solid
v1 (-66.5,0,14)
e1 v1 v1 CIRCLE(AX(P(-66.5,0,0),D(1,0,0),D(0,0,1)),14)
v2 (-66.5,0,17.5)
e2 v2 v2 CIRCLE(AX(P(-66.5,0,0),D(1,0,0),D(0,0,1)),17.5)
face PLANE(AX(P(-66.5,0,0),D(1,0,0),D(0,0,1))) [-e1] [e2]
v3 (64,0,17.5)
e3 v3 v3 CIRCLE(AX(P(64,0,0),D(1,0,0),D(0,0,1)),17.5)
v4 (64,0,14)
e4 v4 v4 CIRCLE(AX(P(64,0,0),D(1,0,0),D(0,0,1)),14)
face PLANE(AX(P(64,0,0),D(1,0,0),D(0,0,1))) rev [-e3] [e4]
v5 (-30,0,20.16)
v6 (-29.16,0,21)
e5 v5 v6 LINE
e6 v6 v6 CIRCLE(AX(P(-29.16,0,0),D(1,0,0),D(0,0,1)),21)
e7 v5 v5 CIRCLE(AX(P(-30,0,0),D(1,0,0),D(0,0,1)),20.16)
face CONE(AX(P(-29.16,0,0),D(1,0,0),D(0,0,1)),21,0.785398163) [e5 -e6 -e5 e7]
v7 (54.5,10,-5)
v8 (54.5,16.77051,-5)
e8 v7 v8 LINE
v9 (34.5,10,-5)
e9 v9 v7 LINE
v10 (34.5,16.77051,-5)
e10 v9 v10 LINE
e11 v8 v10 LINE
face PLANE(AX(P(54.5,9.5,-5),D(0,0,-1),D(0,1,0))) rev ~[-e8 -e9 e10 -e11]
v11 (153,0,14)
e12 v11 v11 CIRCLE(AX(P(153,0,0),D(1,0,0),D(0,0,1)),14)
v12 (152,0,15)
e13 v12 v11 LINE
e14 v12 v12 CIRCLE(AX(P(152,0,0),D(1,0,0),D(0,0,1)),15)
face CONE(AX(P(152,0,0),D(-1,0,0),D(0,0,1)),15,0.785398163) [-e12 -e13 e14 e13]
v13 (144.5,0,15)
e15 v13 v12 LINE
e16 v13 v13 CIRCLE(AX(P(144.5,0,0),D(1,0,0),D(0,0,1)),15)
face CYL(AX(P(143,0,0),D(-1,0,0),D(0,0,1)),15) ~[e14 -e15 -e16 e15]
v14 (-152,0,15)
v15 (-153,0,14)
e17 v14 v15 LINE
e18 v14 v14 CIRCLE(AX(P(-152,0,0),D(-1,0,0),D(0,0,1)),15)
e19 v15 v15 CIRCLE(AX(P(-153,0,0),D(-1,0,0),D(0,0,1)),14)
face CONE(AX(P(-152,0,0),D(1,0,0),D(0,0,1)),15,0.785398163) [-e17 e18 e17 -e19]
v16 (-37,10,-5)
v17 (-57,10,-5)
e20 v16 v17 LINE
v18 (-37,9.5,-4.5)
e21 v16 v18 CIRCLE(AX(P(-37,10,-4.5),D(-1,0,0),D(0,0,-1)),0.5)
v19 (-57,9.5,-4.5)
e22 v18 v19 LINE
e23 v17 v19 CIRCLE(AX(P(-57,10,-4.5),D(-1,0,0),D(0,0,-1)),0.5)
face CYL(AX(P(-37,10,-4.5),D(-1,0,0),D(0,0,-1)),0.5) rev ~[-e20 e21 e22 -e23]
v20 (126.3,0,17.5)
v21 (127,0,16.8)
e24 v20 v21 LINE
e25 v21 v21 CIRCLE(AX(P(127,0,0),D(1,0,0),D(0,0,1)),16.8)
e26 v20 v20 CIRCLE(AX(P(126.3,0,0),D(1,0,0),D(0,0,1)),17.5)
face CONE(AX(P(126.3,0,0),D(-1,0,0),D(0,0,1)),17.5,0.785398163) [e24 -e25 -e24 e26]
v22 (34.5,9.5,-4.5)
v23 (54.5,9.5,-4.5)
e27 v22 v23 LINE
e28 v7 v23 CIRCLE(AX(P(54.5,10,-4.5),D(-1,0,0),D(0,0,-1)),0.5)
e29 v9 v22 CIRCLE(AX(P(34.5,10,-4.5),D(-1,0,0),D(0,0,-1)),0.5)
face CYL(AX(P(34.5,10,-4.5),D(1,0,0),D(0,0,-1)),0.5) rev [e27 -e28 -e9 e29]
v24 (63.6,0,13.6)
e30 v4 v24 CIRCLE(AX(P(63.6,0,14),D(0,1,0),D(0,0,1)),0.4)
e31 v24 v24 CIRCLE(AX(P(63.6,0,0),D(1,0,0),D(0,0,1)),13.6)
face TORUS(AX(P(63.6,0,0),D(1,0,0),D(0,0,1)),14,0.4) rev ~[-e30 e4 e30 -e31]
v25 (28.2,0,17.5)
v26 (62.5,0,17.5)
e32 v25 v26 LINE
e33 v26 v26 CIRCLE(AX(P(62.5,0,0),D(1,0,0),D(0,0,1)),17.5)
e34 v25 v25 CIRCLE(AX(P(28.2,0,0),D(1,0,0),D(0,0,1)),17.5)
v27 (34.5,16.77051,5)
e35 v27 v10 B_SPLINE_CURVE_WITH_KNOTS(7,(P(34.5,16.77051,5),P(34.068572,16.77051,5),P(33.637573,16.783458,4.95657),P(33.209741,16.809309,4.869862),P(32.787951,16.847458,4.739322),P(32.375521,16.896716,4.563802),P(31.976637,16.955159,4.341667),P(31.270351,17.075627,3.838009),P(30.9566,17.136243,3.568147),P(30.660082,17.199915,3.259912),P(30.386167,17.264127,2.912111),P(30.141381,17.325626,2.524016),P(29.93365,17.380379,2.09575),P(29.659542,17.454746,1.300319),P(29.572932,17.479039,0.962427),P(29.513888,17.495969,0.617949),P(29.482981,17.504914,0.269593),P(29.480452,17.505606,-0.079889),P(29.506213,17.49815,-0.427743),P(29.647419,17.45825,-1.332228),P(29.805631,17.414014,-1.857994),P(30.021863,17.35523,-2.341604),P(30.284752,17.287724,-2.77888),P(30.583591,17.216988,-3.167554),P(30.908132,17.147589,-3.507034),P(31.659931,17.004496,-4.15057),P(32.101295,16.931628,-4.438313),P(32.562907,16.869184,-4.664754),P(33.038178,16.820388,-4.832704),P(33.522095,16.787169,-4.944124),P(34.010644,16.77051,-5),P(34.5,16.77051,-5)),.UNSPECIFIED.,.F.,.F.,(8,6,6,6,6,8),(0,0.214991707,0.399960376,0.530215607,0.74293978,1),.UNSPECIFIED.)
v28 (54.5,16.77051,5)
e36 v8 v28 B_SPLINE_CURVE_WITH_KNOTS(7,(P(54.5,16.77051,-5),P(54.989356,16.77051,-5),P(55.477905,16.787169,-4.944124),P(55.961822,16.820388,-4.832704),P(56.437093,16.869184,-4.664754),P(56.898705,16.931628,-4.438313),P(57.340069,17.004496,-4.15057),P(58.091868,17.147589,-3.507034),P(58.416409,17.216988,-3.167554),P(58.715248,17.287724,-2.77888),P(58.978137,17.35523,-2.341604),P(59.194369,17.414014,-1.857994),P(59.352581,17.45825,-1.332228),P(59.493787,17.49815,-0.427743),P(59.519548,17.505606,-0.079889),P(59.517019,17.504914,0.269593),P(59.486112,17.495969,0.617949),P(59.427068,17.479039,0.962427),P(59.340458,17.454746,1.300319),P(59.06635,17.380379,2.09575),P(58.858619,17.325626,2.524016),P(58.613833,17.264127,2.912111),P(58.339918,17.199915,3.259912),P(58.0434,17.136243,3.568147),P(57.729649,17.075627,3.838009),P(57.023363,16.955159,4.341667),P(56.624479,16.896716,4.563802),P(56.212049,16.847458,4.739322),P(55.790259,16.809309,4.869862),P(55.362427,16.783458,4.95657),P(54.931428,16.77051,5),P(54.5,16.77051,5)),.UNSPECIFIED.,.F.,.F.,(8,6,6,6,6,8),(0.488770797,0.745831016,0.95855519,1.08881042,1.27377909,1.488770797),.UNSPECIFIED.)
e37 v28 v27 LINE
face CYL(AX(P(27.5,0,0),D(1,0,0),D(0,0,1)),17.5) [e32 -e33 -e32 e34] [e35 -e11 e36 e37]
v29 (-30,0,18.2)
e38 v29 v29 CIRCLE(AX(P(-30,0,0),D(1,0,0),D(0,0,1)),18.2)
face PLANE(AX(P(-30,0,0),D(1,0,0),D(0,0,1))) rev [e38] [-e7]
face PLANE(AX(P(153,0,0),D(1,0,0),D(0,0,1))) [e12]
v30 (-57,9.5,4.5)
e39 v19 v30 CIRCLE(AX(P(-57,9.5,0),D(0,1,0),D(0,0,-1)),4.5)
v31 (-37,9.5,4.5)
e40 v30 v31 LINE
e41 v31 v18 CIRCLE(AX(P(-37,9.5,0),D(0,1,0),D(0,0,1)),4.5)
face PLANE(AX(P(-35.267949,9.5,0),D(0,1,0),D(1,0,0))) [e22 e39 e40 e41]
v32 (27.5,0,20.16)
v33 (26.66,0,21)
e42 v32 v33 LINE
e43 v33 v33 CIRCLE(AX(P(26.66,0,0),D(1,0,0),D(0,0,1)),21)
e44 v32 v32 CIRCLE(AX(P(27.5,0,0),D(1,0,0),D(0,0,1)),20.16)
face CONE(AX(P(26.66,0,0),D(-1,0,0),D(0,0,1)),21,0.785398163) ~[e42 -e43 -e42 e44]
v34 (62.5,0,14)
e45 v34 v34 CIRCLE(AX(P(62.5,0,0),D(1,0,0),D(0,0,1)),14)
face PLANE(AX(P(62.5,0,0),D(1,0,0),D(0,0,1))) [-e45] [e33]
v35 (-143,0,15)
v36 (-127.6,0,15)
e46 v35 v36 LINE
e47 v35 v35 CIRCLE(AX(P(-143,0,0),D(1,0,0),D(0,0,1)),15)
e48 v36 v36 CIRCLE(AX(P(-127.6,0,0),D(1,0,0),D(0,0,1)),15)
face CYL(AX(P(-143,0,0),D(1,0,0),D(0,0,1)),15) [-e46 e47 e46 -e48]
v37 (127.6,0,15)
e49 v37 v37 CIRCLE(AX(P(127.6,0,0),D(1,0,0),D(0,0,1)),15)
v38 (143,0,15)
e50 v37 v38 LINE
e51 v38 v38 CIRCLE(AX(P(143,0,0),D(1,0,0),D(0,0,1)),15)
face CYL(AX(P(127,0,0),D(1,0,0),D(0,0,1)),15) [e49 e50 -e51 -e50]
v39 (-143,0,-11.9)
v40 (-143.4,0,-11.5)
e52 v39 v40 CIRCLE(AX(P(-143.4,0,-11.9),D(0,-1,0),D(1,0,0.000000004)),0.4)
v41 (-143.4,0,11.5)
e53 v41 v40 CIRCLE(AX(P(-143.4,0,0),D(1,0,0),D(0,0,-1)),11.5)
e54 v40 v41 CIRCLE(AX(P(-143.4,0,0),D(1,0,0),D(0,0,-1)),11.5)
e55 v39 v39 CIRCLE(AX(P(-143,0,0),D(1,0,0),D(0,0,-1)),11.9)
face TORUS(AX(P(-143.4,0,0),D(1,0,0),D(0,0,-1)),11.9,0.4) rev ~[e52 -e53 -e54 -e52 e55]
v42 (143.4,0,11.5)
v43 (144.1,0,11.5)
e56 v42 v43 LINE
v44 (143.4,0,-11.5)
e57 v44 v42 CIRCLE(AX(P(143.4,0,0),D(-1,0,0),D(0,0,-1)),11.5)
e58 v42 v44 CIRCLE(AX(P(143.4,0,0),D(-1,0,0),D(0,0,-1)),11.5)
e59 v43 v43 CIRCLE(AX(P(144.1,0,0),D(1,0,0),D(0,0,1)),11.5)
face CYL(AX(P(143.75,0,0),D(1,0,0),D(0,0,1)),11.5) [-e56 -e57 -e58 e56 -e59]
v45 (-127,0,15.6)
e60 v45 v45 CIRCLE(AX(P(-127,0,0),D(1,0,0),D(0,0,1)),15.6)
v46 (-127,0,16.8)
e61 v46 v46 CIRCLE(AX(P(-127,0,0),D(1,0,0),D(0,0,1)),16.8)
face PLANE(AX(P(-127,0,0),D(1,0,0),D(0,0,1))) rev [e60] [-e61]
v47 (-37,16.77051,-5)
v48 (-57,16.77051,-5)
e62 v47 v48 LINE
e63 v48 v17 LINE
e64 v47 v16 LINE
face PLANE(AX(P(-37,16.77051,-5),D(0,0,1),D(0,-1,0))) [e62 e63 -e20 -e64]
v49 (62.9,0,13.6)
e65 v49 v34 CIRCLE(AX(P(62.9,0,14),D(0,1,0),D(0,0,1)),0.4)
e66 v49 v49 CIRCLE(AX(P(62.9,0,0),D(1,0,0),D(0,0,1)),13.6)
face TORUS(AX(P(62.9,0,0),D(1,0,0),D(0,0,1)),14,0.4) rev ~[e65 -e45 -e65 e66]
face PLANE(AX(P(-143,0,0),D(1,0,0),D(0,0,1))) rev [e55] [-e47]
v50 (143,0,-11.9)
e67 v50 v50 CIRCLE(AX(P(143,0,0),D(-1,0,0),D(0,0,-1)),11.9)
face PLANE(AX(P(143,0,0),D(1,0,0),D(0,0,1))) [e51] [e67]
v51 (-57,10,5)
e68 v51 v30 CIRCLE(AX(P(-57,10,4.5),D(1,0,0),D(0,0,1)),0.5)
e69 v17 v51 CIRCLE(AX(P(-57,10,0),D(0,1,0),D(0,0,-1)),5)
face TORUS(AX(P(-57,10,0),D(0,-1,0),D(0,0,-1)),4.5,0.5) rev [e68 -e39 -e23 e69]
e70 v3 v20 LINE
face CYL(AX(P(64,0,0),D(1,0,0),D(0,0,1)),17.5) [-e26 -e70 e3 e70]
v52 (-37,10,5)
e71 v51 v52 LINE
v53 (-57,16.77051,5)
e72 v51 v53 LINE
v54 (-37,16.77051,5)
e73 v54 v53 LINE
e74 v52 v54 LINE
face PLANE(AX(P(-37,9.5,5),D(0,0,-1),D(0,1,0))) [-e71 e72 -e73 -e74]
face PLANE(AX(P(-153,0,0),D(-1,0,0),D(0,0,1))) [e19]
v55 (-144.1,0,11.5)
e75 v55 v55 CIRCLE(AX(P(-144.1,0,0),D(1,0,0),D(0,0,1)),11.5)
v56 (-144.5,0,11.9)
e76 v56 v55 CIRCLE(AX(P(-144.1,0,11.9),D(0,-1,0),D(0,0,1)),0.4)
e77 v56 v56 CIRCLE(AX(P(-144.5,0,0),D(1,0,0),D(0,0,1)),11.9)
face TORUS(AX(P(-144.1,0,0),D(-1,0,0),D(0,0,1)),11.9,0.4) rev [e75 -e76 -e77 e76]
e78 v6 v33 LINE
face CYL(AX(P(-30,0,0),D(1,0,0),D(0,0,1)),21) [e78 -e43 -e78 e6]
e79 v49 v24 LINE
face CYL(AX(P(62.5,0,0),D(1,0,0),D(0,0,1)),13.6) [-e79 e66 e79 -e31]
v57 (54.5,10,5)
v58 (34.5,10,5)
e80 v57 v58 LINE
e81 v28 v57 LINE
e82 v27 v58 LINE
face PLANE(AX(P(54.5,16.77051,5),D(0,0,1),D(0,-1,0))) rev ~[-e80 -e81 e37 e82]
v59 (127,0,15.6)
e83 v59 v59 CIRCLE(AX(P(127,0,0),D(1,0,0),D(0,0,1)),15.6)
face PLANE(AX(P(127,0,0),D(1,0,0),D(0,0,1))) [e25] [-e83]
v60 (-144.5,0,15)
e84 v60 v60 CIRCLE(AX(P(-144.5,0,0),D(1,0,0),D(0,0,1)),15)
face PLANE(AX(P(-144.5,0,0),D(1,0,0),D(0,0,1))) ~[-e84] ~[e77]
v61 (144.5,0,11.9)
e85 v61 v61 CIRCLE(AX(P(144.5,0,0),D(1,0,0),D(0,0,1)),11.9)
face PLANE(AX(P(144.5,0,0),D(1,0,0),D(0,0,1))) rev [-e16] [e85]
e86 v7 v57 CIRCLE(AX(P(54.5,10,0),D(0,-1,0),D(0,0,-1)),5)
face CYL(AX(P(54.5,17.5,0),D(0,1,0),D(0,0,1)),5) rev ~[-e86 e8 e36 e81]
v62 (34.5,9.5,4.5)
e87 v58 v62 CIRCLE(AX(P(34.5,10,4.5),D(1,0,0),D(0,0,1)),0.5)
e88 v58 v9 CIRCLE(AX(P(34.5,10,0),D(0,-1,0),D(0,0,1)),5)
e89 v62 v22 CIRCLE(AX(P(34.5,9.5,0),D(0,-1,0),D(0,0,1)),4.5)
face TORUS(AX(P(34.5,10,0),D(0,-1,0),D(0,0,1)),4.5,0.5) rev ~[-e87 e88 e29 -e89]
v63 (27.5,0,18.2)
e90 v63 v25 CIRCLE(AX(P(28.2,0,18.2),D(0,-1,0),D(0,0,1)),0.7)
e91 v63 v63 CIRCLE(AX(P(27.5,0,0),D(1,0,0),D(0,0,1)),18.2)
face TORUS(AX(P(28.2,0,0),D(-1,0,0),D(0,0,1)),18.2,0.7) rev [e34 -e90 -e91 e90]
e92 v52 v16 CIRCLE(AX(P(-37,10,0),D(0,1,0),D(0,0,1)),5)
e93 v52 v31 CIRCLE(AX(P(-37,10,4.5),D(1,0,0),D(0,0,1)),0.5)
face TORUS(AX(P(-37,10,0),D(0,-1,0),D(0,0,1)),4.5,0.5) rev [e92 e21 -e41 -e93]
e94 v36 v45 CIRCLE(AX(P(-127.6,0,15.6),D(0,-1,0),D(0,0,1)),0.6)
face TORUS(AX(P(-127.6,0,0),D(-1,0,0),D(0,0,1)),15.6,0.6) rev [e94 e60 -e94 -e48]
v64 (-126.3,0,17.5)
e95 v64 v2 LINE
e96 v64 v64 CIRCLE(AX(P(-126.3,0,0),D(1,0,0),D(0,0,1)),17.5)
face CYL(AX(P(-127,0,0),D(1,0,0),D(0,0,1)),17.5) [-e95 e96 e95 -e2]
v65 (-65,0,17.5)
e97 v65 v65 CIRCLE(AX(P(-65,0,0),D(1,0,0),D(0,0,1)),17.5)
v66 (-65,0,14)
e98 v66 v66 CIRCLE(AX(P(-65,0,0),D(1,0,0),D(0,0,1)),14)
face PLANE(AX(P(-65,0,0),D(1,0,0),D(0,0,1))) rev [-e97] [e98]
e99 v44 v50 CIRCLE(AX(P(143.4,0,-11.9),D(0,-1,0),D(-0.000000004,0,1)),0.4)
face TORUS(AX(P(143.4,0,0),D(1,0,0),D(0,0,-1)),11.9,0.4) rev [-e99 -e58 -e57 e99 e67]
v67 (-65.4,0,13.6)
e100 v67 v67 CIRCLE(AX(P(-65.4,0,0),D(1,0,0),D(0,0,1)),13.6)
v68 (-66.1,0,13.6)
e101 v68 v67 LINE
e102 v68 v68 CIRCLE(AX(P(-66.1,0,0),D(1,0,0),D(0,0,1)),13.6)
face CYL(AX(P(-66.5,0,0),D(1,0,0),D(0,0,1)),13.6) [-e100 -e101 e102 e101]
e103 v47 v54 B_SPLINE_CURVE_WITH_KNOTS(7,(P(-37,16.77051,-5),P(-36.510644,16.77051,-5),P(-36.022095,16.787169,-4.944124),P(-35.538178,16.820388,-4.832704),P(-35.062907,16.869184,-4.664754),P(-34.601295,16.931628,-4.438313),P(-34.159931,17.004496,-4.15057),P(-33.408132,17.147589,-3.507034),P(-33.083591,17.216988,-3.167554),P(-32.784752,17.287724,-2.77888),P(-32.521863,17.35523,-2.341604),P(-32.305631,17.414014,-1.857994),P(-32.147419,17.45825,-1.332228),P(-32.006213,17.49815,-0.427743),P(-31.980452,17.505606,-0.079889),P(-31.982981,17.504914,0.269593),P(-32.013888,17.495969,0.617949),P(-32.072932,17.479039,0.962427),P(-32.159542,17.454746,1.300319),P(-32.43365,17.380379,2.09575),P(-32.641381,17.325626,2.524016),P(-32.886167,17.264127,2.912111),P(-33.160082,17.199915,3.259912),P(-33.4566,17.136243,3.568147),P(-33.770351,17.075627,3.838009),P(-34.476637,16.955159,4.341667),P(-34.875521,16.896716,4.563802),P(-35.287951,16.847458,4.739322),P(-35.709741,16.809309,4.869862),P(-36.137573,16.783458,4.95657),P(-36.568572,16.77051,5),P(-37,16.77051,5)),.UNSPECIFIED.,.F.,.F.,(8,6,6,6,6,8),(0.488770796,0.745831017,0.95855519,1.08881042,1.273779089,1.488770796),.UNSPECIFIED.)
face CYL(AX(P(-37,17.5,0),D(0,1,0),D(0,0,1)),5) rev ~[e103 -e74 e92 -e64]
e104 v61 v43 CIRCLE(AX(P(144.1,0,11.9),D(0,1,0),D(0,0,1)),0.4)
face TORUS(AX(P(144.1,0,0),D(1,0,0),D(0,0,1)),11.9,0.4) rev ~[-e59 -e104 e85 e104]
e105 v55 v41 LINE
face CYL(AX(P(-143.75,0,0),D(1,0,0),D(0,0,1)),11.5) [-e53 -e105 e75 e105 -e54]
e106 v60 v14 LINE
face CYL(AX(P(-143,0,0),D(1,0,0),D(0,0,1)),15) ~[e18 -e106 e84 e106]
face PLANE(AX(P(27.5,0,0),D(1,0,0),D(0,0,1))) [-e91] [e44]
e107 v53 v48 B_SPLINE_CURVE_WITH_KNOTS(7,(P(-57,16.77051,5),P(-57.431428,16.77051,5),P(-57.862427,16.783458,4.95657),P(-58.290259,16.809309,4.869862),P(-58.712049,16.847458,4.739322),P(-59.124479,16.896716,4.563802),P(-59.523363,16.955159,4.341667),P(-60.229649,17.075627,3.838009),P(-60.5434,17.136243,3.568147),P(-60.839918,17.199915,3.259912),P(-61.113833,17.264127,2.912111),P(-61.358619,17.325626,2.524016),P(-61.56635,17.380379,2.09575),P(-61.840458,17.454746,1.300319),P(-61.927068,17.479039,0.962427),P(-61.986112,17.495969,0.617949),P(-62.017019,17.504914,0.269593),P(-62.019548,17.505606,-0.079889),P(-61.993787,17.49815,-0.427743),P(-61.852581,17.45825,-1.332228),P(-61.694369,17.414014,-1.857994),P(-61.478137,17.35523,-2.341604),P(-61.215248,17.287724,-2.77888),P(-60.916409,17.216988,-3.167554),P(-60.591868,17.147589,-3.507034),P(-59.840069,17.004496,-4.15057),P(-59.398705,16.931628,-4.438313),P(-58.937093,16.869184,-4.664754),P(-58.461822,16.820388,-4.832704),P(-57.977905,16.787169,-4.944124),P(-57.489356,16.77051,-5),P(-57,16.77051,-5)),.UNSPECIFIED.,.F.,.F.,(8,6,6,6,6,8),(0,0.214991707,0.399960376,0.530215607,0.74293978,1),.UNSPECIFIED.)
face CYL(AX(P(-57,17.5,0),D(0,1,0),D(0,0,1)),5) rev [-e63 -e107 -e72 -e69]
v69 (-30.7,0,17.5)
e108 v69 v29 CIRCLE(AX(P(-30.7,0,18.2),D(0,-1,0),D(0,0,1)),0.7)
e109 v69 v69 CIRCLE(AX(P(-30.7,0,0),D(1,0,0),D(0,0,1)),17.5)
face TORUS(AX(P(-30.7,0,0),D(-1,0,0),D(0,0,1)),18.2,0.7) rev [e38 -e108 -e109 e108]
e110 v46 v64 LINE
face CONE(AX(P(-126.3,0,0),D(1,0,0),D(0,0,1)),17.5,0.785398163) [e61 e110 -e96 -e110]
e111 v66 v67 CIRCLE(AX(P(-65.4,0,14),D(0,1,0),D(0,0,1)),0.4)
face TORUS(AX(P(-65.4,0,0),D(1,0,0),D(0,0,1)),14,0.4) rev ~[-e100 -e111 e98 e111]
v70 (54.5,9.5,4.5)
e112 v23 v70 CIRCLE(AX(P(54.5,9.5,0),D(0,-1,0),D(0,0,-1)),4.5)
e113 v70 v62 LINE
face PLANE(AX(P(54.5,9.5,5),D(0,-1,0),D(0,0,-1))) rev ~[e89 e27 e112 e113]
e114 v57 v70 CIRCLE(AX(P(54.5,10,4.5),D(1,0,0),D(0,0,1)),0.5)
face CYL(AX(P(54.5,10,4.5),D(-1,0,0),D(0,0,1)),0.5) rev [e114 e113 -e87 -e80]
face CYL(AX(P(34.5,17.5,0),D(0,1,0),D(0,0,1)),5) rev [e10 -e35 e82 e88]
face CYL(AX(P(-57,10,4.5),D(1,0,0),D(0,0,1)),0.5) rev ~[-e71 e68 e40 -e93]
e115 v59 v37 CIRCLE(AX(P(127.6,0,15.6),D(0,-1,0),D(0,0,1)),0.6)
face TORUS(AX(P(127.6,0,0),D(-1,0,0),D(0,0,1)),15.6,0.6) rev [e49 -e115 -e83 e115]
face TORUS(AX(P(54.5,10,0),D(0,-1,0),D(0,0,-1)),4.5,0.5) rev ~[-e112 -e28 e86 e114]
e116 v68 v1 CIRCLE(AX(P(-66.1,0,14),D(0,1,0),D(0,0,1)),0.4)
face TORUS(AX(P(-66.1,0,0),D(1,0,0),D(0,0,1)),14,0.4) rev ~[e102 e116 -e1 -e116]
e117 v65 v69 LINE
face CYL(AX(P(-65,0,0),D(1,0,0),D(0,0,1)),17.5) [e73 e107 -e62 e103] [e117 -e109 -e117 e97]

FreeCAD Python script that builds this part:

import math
import FreeCAD as App
import Part
import Sketcher
from FreeCAD import Vector
Q = App.Units.Quantity


def edges_at(feature, points):
    """Names of the edges that pass closest to the given points."""
    edges = feature.Shape.Edges
    near = lambda p: min(range(len(edges)), key=lambda i: edges[i].distToShape(Part.Vertex(*p))[0])
    return sorted({f"Edge{near(p) + 1}" for p in points})


def add_polygon(sketch, points):
    """Adds a closed chain of lines whose ends are joined by coincident constraints."""
    first, n = sketch.GeometryCount, len(points)
    for a, b in zip(points, points[1:] + points[:1]):
        sketch.addGeometry(Part.LineSegment(App.Vector(*a, 0), App.Vector(*b, 0)), False)
    for i in range(n):
        sketch.addConstraint(Sketcher.Constraint("Coincident", first + i, 2, first + (i + 1) % n, 1))

doc = App.newDocument("Part")
params = doc.addObject("Spreadsheet::Sheet", "Params")
for row, (alias, value) in enumerate([
    ("sketch1_width", "286 mm"),
    ("sketch1_width2", "16 mm"),
    ("sketch1_width3", "63 mm"),
    ("sketch1_width4", "35 mm"),
    ("sketch1_height", "15 mm"),
    ("revolution_angle", "360 deg"),
    ("sketch2_radius", "17.5 mm"),
    ("sketch2_height", "10 mm"),
    ("pocket1_length", "20 mm"),
    ("sketch3_radius", "17.5 mm"),
    ("sketch3_height", "10 mm"),
    ("pocket2_length", "20 mm"),
    ("fillet_radius", "0.6 mm"),
    ("chamfer_size", "0.7 mm"),
    ("fillet2_radius", "0.7 mm"),
    ("chamfer2_size", "0.84 mm"),
    ("fillet3_radius", "0.7 mm"),
    ("chamfer3_size", "0.84 mm"),
    ("chamfer4_size", "0.7 mm"),
    ("fillet4_radius", "0.6 mm"),
    ("sketch4_radius", "5 mm"),
    ("pocket3_length", "8 mm"),
    ("sketch5_radius", "5 mm"),
    ("pocket4_length", "8 mm"),
    ("sketch6_diameter", "30 mm"),
    ("pad1_length", "10 mm"),
    ("sketch7_width", "1.5 mm"),
    ("sketch7_height", "3.5 mm"),
    ("groove_angle", "360 deg"),
    ("fillet5_radius", "0.4 mm"),
    ("sketch8_diameter", "30 mm"),
    ("pad2_length", "10 mm"),
    ("sketch9_width", "1.5 mm"),
    ("sketch9_height", "3.5 mm"),
    ("groove2_angle", "360 deg"),
    ("fillet6_radius", "0.4 mm"),
    ("sketch10_radius", "0.4 mm"),
    ("revolution2_angle", "360 deg"),
    ("fillet7_radius", "0.4 mm"),
    ("fillet8_radius", "0.4 mm"),
    ("sketch11_radius", "0.4 mm"),
    ("revolution3_angle", "360 deg"),
    ("fillet9_radius", "0.5 mm"),
    ("chamfer5_size", "1 mm"),
    ("chamfer6_size", "1 mm"),
], start=1):
    params.set(f"A{row}", alias)
    params.set(f"B{row}", "=" + value)
    params.setAlias(f"B{row}", alias)

body = doc.addObject("PartDesign::Body", "Body")

# Sketch on XY plane
sketch1 = doc.addObject("Sketcher::SketchObject", "Sketch")
body.addObject(sketch1)
sketch1.AttachmentSupport = (doc.XY_Plane, [""])
sketch1.MapMode = "FlatFace"
add_polygon(sketch1, [(-143, 15), (-143, 0), (143, 0), (143, 15), (127, 15), (127, 17.5), (64, 17.5), (64, 13.6), (62.5, 13.6), (62.5, 17.5), (27.5, 17.5), (27.5, 21), (-30, 21), (-30, 17.5), (-65, 17.5), (-65, 13.6), (-66.5, 13.6), (-66.5, 17.5), (-127, 17.5), (-127, 15)])  # lines 0-19
sketch1.addConstraint(Sketcher.Constraint("Vertical", 0))
sketch1.addConstraint(Sketcher.Constraint("Horizontal", 1))
sketch1.addConstraint(Sketcher.Constraint("Vertical", 2))
sketch1.addConstraint(Sketcher.Constraint("Horizontal", 3))
sketch1.addConstraint(Sketcher.Constraint("Vertical", 4))
sketch1.addConstraint(Sketcher.Constraint("Horizontal", 5))
sketch1.addConstraint(Sketcher.Constraint("Vertical", 6))
sketch1.addConstraint(Sketcher.Constraint("Horizontal", 7))
sketch1.addConstraint(Sketcher.Constraint("Vertical", 8))
sketch1.addConstraint(Sketcher.Constraint("Horizontal", 9))
sketch1.addConstraint(Sketcher.Constraint("Vertical", 10))
sketch1.addConstraint(Sketcher.Constraint("Horizontal", 11))
sketch1.addConstraint(Sketcher.Constraint("Vertical", 12))
sketch1.addConstraint(Sketcher.Constraint("Horizontal", 13))
sketch1.addConstraint(Sketcher.Constraint("Vertical", 14))
sketch1.addConstraint(Sketcher.Constraint("Horizontal", 15))
sketch1.addConstraint(Sketcher.Constraint("Vertical", 16))
sketch1.addConstraint(Sketcher.Constraint("Horizontal", 17))
sketch1.addConstraint(Sketcher.Constraint("Vertical", 18))
sketch1.addConstraint(Sketcher.Constraint("Horizontal", 19))
sketch1.addConstraint(Sketcher.Constraint("Symmetric", 0, 2, 1, 2, -1, 1))
sketch1.addConstraint(Sketcher.Constraint("Symmetric", 4, 2, 17, 2, -2))
sketch1.addConstraint(Sketcher.Constraint("Horizontal", 5, 2, 8, 2))
sketch1.addConstraint(Sketcher.Constraint("Horizontal", 9, 2, 12, 2))
sketch1.addConstraint(Sketcher.Constraint("Horizontal", 7, 2, 14, 2))
sketch1.addConstraint(Sketcher.Constraint("Horizontal", 3, 2, 18, 2))
sketch1.addConstraint(Sketcher.Constraint("Equal", 9, 13))
sketch1.addConstraint(Sketcher.Constraint("Equal", 7, 15))
sketch1.addConstraint(Sketcher.Constraint("DistanceX", 1, 1, 1, 2, Q("286 mm")))
sketch1.addConstraint(Sketcher.Constraint("DistanceX", 3, 2, 3, 1, Q("16 mm")))
sketch1.addConstraint(Sketcher.Constraint("DistanceX", 5, 2, 5, 1, Q("63 mm")))
sketch1.addConstraint(Sketcher.Constraint("DistanceX", 9, 2, 9, 1, Q("35 mm")))
sketch1.addConstraint(Sketcher.Constraint("DistanceY", 0, 2, 0, 1, Q("15 mm")))
sketch1.addConstraint(Sketcher.Constraint("DistanceX", 7, 2, 7, 1, Q("1.5 mm")))
sketch1.addConstraint(Sketcher.Constraint("DistanceX", 11, 2, 11, 1, Q("57.5 mm")))
sketch1.addConstraint(Sketcher.Constraint("DistanceY", 4, 1, 4, 2, Q("2.5 mm")))
sketch1.addConstraint(Sketcher.Constraint("DistanceY", 6, 2, 6, 1, Q("3.9 mm")))
sketch1.addConstraint(Sketcher.Constraint("DistanceY", 10, 1, 10, 2, Q("3.5 mm")))
sketch1.setExpression("Constraints[48]", "Params.sketch1_width")
sketch1.setExpression("Constraints[49]", "Params.sketch1_width2")
sketch1.setExpression("Constraints[50]", "Params.sketch1_width3")
sketch1.setExpression("Constraints[51]", "Params.sketch1_width4")
sketch1.setExpression("Constraints[52]", "Params.sketch1_height")
revolution = doc.addObject("PartDesign::Revolution", "Revolution")
body.addObject(revolution)
revolution.Profile = sketch1
revolution.ReferenceAxis = (sketch1, ["H_Axis"])
revolution.setExpression("Angle", "Params.revolution_angle")

# Sketch on YZ plane
sketch2 = doc.addObject("Sketcher::SketchObject", "Sketch001")
body.addObject(sketch2)
sketch2.AttachmentSupport = (doc.YZ_Plane, [""])
sketch2.MapMode = "FlatFace"
sketch2.AttachmentOffset = App.Placement(Vector(0, 0, -37), App.Rotation())
sketch2.addGeometry(Part.LineSegment(Vector(10, -5, 0), Vector(10, 5, 0)), False)
sketch2.addGeometry(Part.LineSegment(Vector(10, 5, 0), Vector(17, 5, 0)), False)
sketch2.addGeometry(Part.ArcOfCircle(Part.Circle(Vector(0, 0, 0), Vector(0, 0, 1), 17), math.radians(-17), math.radians(17)), False)
sketch2.addGeometry(Part.LineSegment(Vector(17, -5, 0), Vector(10, -5, 0)), False)
sketch2.addConstraint(Sketcher.Constraint("Coincident", 0, 2, 1, 1))
sketch2.addConstraint(Sketcher.Constraint("Coincident", 1, 2, 2, 2))
sketch2.addConstraint(Sketcher.Constraint("Coincident", 2, 1, 3, 1))
sketch2.addConstraint(Sketcher.Constraint("Coincident", 3, 2, 0, 1))
sketch2.addConstraint(Sketcher.Constraint("Vertical", 0))
sketch2.addConstraint(Sketcher.Constraint("Horizontal", 1))
sketch2.addConstraint(Sketcher.Constraint("Horizontal", 3))
sketch2.addConstraint(Sketcher.Constraint("Coincident", 2, 3, -1, 1))
sketch2.addConstraint(Sketcher.Constraint("Vertical", 1, 2, 2, 1))
sketch2.addConstraint(Sketcher.Constraint("Radius", 2, Q("17.5 mm")))
sketch2.addConstraint(Sketcher.Constraint("DistanceY", 0, 1, 0, 2, Q("10 mm")))
sketch2.addConstraint(Sketcher.Constraint("DistanceX", -1, 1, 0, 2, Q("9.5 mm")))
sketch2.setExpression("Constraints[9]", "Params.sketch2_radius")
sketch2.setExpression("Constraints[10]", "Params.sketch2_height")
pocket1 = doc.addObject("PartDesign::Pocket", "Pocket")
body.addObject(pocket1)
pocket1.Profile = sketch2
pocket1.setExpression("Length", "Params.pocket1_length")

# Sketch on YZ plane
sketch3 = doc.addObject("Sketcher::SketchObject", "Sketch002")
body.addObject(sketch3)
sketch3.AttachmentSupport = (doc.YZ_Plane, [""])
sketch3.MapMode = "FlatFace"
sketch3.AttachmentOffset = App.Placement(Vector(0, 0, 54.5), App.Rotation())
sketch3.addGeometry(Part.LineSegment(Vector(10, 5, 0), Vector(10, -5, 0)), False)
sketch3.addGeometry(Part.LineSegment(Vector(10, -5, 0), Vector(17, -5, 0)), False)
sketch3.addGeometry(Part.ArcOfCircle(Part.Circle(Vector(0, 0, 0), Vector(0, 0, 1), 17), math.radians(-17), math.radians(17)), False)
sketch3.addGeometry(Part.LineSegment(Vector(17, 5, 0), Vector(10, 5, 0)), False)
sketch3.addConstraint(Sketcher.Constraint("Coincident", 0, 2, 1, 1))
sketch3.addConstraint(Sketcher.Constraint("Coincident", 1, 2, 2, 1))
sketch3.addConstraint(Sketcher.Constraint("Coincident", 2, 2, 3, 1))
sketch3.addConstraint(Sketcher.Constraint("Coincident", 3, 2, 0, 1))
sketch3.addConstraint(Sketcher.Constraint("Vertical", 0))
sketch3.addConstraint(Sketcher.Constraint("Horizontal", 1))
sketch3.addConstraint(Sketcher.Constraint("Horizontal", 3))
sketch3.addConstraint(Sketcher.Constraint("Coincident", 2, 3, -1, 1))
sketch3.addConstraint(Sketcher.Constraint("Vertical", 1, 2, 2, 2))
sketch3.addConstraint(Sketcher.Constraint("Radius", 2, Q("17.5 mm")))
sketch3.addConstraint(Sketcher.Constraint("DistanceY", 0, 2, 0, 1, Q("10 mm")))
sketch3.addConstraint(Sketcher.Constraint("DistanceX", -1, 1, 0, 2, Q("9.5 mm")))
sketch3.setExpression("Constraints[9]", "Params.sketch3_radius")
sketch3.setExpression("Constraints[10]", "Params.sketch3_height")
pocket2 = doc.addObject("PartDesign::Pocket", "Pocket001")
body.addObject(pocket2)
pocket2.Profile = sketch3
pocket2.setExpression("Length", "Params.pocket2_length")
doc.recompute()

fillet = doc.addObject("PartDesign::Fillet", "Fillet")
body.addObject(fillet)
fillet.Base = (pocket2, edges_at(pocket2, [(-127, 0, -15)]))
fillet.setExpression("Radius", "Params.fillet_radius")
doc.recompute()

chamfer = doc.addObject("PartDesign::Chamfer", "Chamfer")
body.addObject(chamfer)
chamfer.Base = (fillet, edges_at(fillet, [(-127, 0, -17.5)]))
chamfer.setExpression("Size", "Params.chamfer_size")
doc.recompute()

fillet2 = doc.addObject("PartDesign::Fillet", "Fillet001")
body.addObject(fillet2)
fillet2.Base = (chamfer, edges_at(chamfer, [(-30, 0, -17.5)]))
fillet2.setExpression("Radius", "Params.fillet2_radius")
doc.recompute()

chamfer2 = doc.addObject("PartDesign::Chamfer", "Chamfer001")
body.addObject(chamfer2)
chamfer2.Base = (fillet2, edges_at(fillet2, [(-30, 0, -21)]))
chamfer2.setExpression("Size", "Params.chamfer2_size")
doc.recompute()

fillet3 = doc.addObject("PartDesign::Fillet", "Fillet002")
body.addObject(fillet3)
fillet3.Base = (chamfer2, edges_at(chamfer2, [(27.5, 0, -17.5)]))
fillet3.setExpression("Radius", "Params.fillet3_radius")
doc.recompute()

chamfer3 = doc.addObject("PartDesign::Chamfer", "Chamfer002")
body.addObject(chamfer3)
chamfer3.Base = (fillet3, edges_at(fillet3, [(27.5, 0, -21)]))
chamfer3.setExpression("Size", "Params.chamfer3_size")
doc.recompute()

chamfer4 = doc.addObject("PartDesign::Chamfer", "Chamfer003")
body.addObject(chamfer4)
chamfer4.Base = (chamfer3, edges_at(chamfer3, [(127, 0, -17.5)]))
chamfer4.setExpression("Size", "Params.chamfer4_size")
doc.recompute()

fillet4 = doc.addObject("PartDesign::Fillet", "Fillet003")
body.addObject(fillet4)
fillet4.Base = (chamfer4, edges_at(chamfer4, [(127, 0, -15)]))
fillet4.setExpression("Radius", "Params.fillet4_radius")

# Sketch on XZ plane
sketch4 = doc.addObject("Sketcher::SketchObject", "Sketch003")
body.addObject(sketch4)
sketch4.AttachmentSupport = (doc.XZ_Plane, [""])
sketch4.MapMode = "FlatFace"
sketch4.AttachmentOffset = App.Placement(Vector(0, 0, -17.5), App.Rotation())
sketch4.addGeometry(Part.LineSegment(Vector(-57, 5, 0), Vector(-57, -5, 0)), False)
sketch4.addGeometry(Part.ArcOfCircle(Part.Circle(Vector(-57, 0, 0), Vector(0, 0, 1), 5), math.radians(90), math.radians(270)), False)
sketch4.addGeometry(Part.LineSegment(Vector(-37, -5, 0), Vector(-37, 5, 0)), False)
sketch4.addGeometry(Part.ArcOfCircle(Part.Circle(Vector(-37, 0, 0), Vector(0, 0, 1), 5), math.radians(-90), math.radians(90)), False)
sketch4.addConstraint(Sketcher.Constraint("Coincident", 0, 1, 1, 1))
sketch4.addConstraint(Sketcher.Constraint("Coincident", 1, 2, 0, 2))
sketch4.addConstraint(Sketcher.Constraint("Coincident", 2, 1, 3, 1))
sketch4.addConstraint(Sketcher.Constraint("Coincident", 3, 2, 2, 2))
sketch4.addConstraint(Sketcher.Constraint("Vertical", 0))
sketch4.addConstraint(Sketcher.Constraint("Vertical", 2))
sketch4.addConstraint(Sketcher.Constraint("Equal", 1, 3))
sketch4.addConstraint(Sketcher.Constraint("PointOnObject", 1, 3, -1))
sketch4.addConstraint(Sketcher.Constraint("PointOnObject", 3, 3, -1))
sketch4.addConstraint(Sketcher.Constraint("Vertical", 1, 3, 0, 1))
sketch4.addConstraint(Sketcher.Constraint("Vertical", 3, 3, 2, 1))
sketch4.addConstraint(Sketcher.Constraint("Radius", 1, Q("5 mm")))
sketch4.addConstraint(Sketcher.Constraint("DistanceX", 1, 3, -1, 1, Q("57 mm")))
sketch4.addConstraint(Sketcher.Constraint("DistanceX", 3, 3, -1, 1, Q("37 mm")))
sketch4.setExpression("Constraints[11]", "Params.sketch4_radius")
pocket3 = doc.addObject("PartDesign::Pocket", "Pocket002")
body.addObject(pocket3)
pocket3.Profile = sketch4
pocket3.setExpression("Length", "Params.pocket3_length")
pocket3.Reversed = True

# Sketch on XZ plane
sketch5 = doc.addObject("Sketcher::SketchObject", "Sketch004")
body.addObject(sketch5)
sketch5.AttachmentSupport = (doc.XZ_Plane, [""])
sketch5.MapMode = "FlatFace"
sketch5.AttachmentOffset = App.Placement(Vector(0, 0, -17.5), App.Rotation())
sketch5.addGeometry(Part.LineSegment(Vector(34, 5, 0), Vector(34, -5, 0)), False)
sketch5.addGeometry(Part.ArcOfCircle(Part.Circle(Vector(34, 0, 0), Vector(0, 0, 1), 5), math.radians(90), math.radians(270)), False)
sketch5.addGeometry(Part.LineSegment(Vector(54, -5, 0), Vector(54, 5, 0)), False)
sketch5.addGeometry(Part.ArcOfCircle(Part.Circle(Vector(54, 0, 0), Vector(0, 0, 1), 5), math.radians(-90), math.radians(90)), False)
sketch5.addConstraint(Sketcher.Constraint("Coincident", 0, 1, 1, 1))
sketch5.addConstraint(Sketcher.Constraint("Coincident", 1, 2, 0, 2))
sketch5.addConstraint(Sketcher.Constraint("Coincident", 2, 1, 3, 1))
sketch5.addConstraint(Sketcher.Constraint("Coincident", 3, 2, 2, 2))
sketch5.addConstraint(Sketcher.Constraint("Vertical", 0))
sketch5.addConstraint(Sketcher.Constraint("Vertical", 2))
sketch5.addConstraint(Sketcher.Constraint("Equal", 1, 3))
sketch5.addConstraint(Sketcher.Constraint("PointOnObject", 1, 3, -1))
sketch5.addConstraint(Sketcher.Constraint("PointOnObject", 3, 3, -1))
sketch5.addConstraint(Sketcher.Constraint("Vertical", 1, 3, 0, 1))
sketch5.addConstraint(Sketcher.Constraint("Vertical", 3, 3, 2, 1))
sketch5.addConstraint(Sketcher.Constraint("Radius", 1, Q("5 mm")))
sketch5.addConstraint(Sketcher.Constraint("DistanceX", 1, 3, 3, 3, Q("20 mm")))
sketch5.addConstraint(Sketcher.Constraint("DistanceX", -1, 1, 1, 3, Q("34.5 mm")))
sketch5.setExpression("Constraints[11]", "Params.sketch5_radius")
pocket4 = doc.addObject("PartDesign::Pocket", "Pocket003")
body.addObject(pocket4)
pocket4.Profile = sketch5
pocket4.setExpression("Length", "Params.pocket4_length")
pocket4.Reversed = True
body2 = doc.addObject("PartDesign::Body", "Body001")

# Sketch on YZ plane
sketch6 = doc.addObject("Sketcher::SketchObject", "Sketch005")
body2.addObject(sketch6)
sketch6.AttachmentSupport = (doc.getObject("YZ_Plane001"), [""])
sketch6.MapMode = "FlatFace"
sketch6.AttachmentOffset = App.Placement(Vector(0, 0, -143), App.Rotation())
sketch6.addGeometry(Part.Circle(Vector(0, 0, 0), Vector(0, 0, 1), 15), False)
sketch6.addConstraint(Sketcher.Constraint("Coincident", 0, 3, -1, 1))
sketch6.addConstraint(Sketcher.Constraint("Diameter", 0, Q("30 mm")))
sketch6.setExpression("Constraints[1]", "Params.sketch6_diameter")
pad1 = doc.addObject("PartDesign::Pad", "Pad")
body2.addObject(pad1)
pad1.Profile = sketch6
pad1.setExpression("Length", "Params.pad1_length")
pad1.Reversed = True

# Sketch on XY plane
sketch7 = doc.addObject("Sketcher::SketchObject", "Sketch006")
body2.addObject(sketch7)
sketch7.AttachmentSupport = (doc.getObject("XY_Plane001"), [""])
sketch7.MapMode = "FlatFace"
add_polygon(sketch7, [(-144.5, 15), (-144.5, 11.5), (-143, 11.5), (-143, 15)])  # lines 0-3
sketch7.addConstraint(Sketcher.Constraint("Vertical", 0))
sketch7.addConstraint(Sketcher.Constraint("Horizontal", 1))
sketch7.addConstraint(Sketcher.Constraint("Vertical", 2))
sketch7.addConstraint(Sketcher.Constraint("Horizontal", 3))
sketch7.addConstraint(Sketcher.Constraint("DistanceX", 1, 1, 1, 2, Q("1.5 mm")))
sketch7.addConstraint(Sketcher.Constraint("DistanceY", 0, 2, 0, 1, Q("3.5 mm")))
sketch7.addConstraint(Sketcher.Constraint("DistanceX", 1, 2, -1, 1, Q("143 mm")))
sketch7.addConstraint(Sketcher.Constraint("DistanceY", -1, 1, 2, 2, Q("15 mm")))
sketch7.setExpression("Constraints[8]", "Params.sketch7_width")
sketch7.setExpression("Constraints[9]", "Params.sketch7_height")
groove = doc.addObject("PartDesign::Groove", "Groove")
body2.addObject(groove)
groove.Profile = sketch7
groove.ReferenceAxis = (sketch7, ["H_Axis"])
groove.setExpression("Angle", "Params.groove_angle")
doc.recompute()

fillet5 = doc.addObject("PartDesign::Fillet", "Fillet004")
body2.addObject(fillet5)
fillet5.Base = (groove, edges_at(groove, [(-144.5, 0, -11.5)]))
fillet5.setExpression("Radius", "Params.fillet5_radius")
body3 = doc.addObject("PartDesign::Body", "Body002")

# Sketch on YZ plane
sketch8 = doc.addObject("Sketcher::SketchObject", "Sketch007")
body3.addObject(sketch8)
sketch8.AttachmentSupport = (doc.getObject("YZ_Plane002"), [""])
sketch8.MapMode = "FlatFace"
sketch8.AttachmentOffset = App.Placement(Vector(0, 0, 143), App.Rotation())
sketch8.addGeometry(Part.Circle(Vector(0, 0, 0), Vector(0, 0, 1), 15), False)
sketch8.addConstraint(Sketcher.Constraint("Coincident", 0, 3, -1, 1))
sketch8.addConstraint(Sketcher.Constraint("Diameter", 0, Q("30 mm")))
sketch8.setExpression("Constraints[1]", "Params.sketch8_diameter")
pad2 = doc.addObject("PartDesign::Pad", "Pad001")
body3.addObject(pad2)
pad2.Profile = sketch8
pad2.setExpression("Length", "Params.pad2_length")

# Sketch on XY plane
sketch9 = doc.addObject("Sketcher::SketchObject", "Sketch008")
body3.addObject(sketch9)
sketch9.AttachmentSupport = (doc.getObject("XY_Plane002"), [""])
sketch9.MapMode = "FlatFace"
add_polygon(sketch9, [(143, 15), (143, 11.5), (144.5, 11.5), (144.5, 15)])  # lines 0-3
sketch9.addConstraint(Sketcher.Constraint("Vertical", 0))
sketch9.addConstraint(Sketcher.Constraint("Horizontal", 1))
sketch9.addConstraint(Sketcher.Constraint("Vertical", 2))
sketch9.addConstraint(Sketcher.Constraint("Horizontal", 3))
sketch9.addConstraint(Sketcher.Constraint("DistanceX", 1, 1, 1, 2, Q("1.5 mm")))
sketch9.addConstraint(Sketcher.Constraint("DistanceY", 0, 2, 0, 1, Q("3.5 mm")))
sketch9.addConstraint(Sketcher.Constraint("DistanceX", -1, 1, 0, 2, Q("143 mm")))
sketch9.addConstraint(Sketcher.Constraint("DistanceY", -1, 1, 2, 2, Q("15 mm")))
sketch9.setExpression("Constraints[8]", "Params.sketch9_width")
sketch9.setExpression("Constraints[9]", "Params.sketch9_height")
groove2 = doc.addObject("PartDesign::Groove", "Groove001")
body3.addObject(groove2)
groove2.Profile = sketch9
groove2.ReferenceAxis = (sketch9, ["H_Axis"])
groove2.setExpression("Angle", "Params.groove2_angle")
doc.recompute()

fillet6 = doc.addObject("PartDesign::Fillet", "Fillet005")
body3.addObject(fillet6)
fillet6.Base = (groove2, edges_at(groove2, [(144.5, 0, -11.5)]))
fillet6.setExpression("Radius", "Params.fillet6_radius")
doc.recompute()

boolean = doc.addObject("PartDesign::Boolean", "Boolean")
body.addObject(boolean)
boolean.Type = "Fuse"
boolean.addObjects([body3])

# Sketch on XY plane
sketch10 = doc.addObject("Sketcher::SketchObject", "Sketch009")
body.addObject(sketch10)
sketch10.AttachmentSupport = (doc.XY_Plane, [""])
sketch10.MapMode = "FlatFace"
sketch10.addGeometry(Part.LineSegment(Vector(143, 11.9, 0), Vector(143, 11.5, 0)), False)
sketch10.addGeometry(Part.LineSegment(Vector(143, 11.5, 0), Vector(143.4, 11.5, 0)), False)
sketch10.addGeometry(Part.ArcOfCircle(Part.Circle(Vector(143.4, 11.9, 0), Vector(0, 0, 1), 0.4), math.radians(-180), math.radians(-90)), False)
sketch10.addConstraint(Sketcher.Constraint("Coincident", 0, 2, 1, 1))
sketch10.addConstraint(Sketcher.Constraint("Tangent", 1, 2, 2, 2))
sketch10.addConstraint(Sketcher.Constraint("Tangent", 2, 1, 0, 1))
sketch10.addConstraint(Sketcher.Constraint("Vertical", 0))
sketch10.addConstraint(Sketcher.Constraint("Horizontal", 1))
sketch10.addConstraint(Sketcher.Constraint("Radius", 2, Q("0.4 mm")))
sketch10.addConstraint(Sketcher.Constraint("DistanceX", -1, 1, 0, 2, Q("143 mm")))
sketch10.addConstraint(Sketcher.Constraint("DistanceY", -1, 1, 2, 3, Q("11.9 mm")))
sketch10.setExpression("Constraints[5]", "Params.sketch10_radius")
revolution2 = doc.addObject("PartDesign::Revolution", "Revolution001")
body.addObject(revolution2)
revolution2.Profile = sketch10
revolution2.ReferenceAxis = (sketch10, ["H_Axis"])
revolution2.setExpression("Angle", "Params.revolution2_angle")
doc.recompute()

fillet7 = doc.addObject("PartDesign::Fillet", "Fillet006")
body.addObject(fillet7)
fillet7.Base = (revolution2, edges_at(revolution2, [(62.5, 0, -13.6), (64, 0, -13.6)]))
fillet7.setExpression("Radius", "Params.fillet7_radius")
doc.recompute()

fillet8 = doc.addObject("PartDesign::Fillet", "Fillet007")
body.addObject(fillet8)
fillet8.Base = (fillet7, edges_at(fillet7, [(-66.5, 0, -13.6), (-65, 0, -13.6)]))
fillet8.setExpression("Radius", "Params.fillet8_radius")
doc.recompute()

boolean2 = doc.addObject("PartDesign::Boolean", "Boolean001")
body.addObject(boolean2)
boolean2.Type = "Fuse"
boolean2.addObjects([body2])

# Sketch on XY plane
sketch11 = doc.addObject("Sketcher::SketchObject", "Sketch010")
body.addObject(sketch11)
sketch11.AttachmentSupport = (doc.XY_Plane, [""])
sketch11.MapMode = "FlatFace"
sketch11.addGeometry(Part.LineSegment(Vector(-143.4, 11.5, 0), Vector(-143, 11.5, 0)), False)
sketch11.addGeometry(Part.LineSegment(Vector(-143, 11.5, 0), Vector(-143, 11.9, 0)), False)
sketch11.addGeometry(Part.ArcOfCircle(Part.Circle(Vector(-143.4, 11.9, 0), Vector(0, 0, 1), 0.4), math.radians(-90), math.radians(0)), False)
sketch11.addConstraint(Sketcher.Constraint("Coincident", 0, 2, 1, 1))
sketch11.addConstraint(Sketcher.Constraint("Tangent", 1, 2, 2, 2))
sketch11.addConstraint(Sketcher.Constraint("Tangent", 2, 1, 0, 1))
sketch11.addConstraint(Sketcher.Constraint("Horizontal", 0))
sketch11.addConstraint(Sketcher.Constraint("Vertical", 1))
sketch11.addConstraint(Sketcher.Constraint("Radius", 2, Q("0.4 mm")))
sketch11.addConstraint(Sketcher.Constraint("DistanceX", 0, 2, -1, 1, Q("143 mm")))
sketch11.addConstraint(Sketcher.Constraint("DistanceY", -1, 1, 2, 3, Q("11.9 mm")))
sketch11.setExpression("Constraints[5]", "Params.sketch11_radius")
revolution3 = doc.addObject("PartDesign::Revolution", "Revolution002")
body.addObject(revolution3)
revolution3.Profile = sketch11
revolution3.ReferenceAxis = (sketch11, ["H_Axis"])
revolution3.setExpression("Angle", "Params.revolution3_angle")
doc.recompute()

fillet9 = doc.addObject("PartDesign::Fillet", "Fillet008")
body.addObject(fillet9)
fillet9.Base = (revolution3, edges_at(revolution3, [
    (-47, 9.5, -5),
    (-47, 9.5, 5),
    (44.5, 9.5, 5),
    (44.5, 9.5, -5),
    (-32, 9.5, 0),
    (-62, 9.5, 0),
    (29.5, 9.5, 0),
    (59.5, 9.5, 0),
]))
fillet9.setExpression("Radius", "Params.fillet9_radius")
doc.recompute()

chamfer5 = doc.addObject("PartDesign::Chamfer", "Chamfer004")
body.addObject(chamfer5)
chamfer5.Base = (fillet9, edges_at(fillet9, [(153, 0, -15)]))
chamfer5.setExpression("Size", "Params.chamfer5_size")
doc.recompute()

chamfer6 = doc.addObject("PartDesign::Chamfer", "Chamfer005")
body.addObject(chamfer6)
chamfer6.Base = (chamfer5, edges_at(chamfer5, [(-153, 0, -15)]))
chamfer6.setExpression("Size", "Params.chamfer6_size")

doc.recompute()
